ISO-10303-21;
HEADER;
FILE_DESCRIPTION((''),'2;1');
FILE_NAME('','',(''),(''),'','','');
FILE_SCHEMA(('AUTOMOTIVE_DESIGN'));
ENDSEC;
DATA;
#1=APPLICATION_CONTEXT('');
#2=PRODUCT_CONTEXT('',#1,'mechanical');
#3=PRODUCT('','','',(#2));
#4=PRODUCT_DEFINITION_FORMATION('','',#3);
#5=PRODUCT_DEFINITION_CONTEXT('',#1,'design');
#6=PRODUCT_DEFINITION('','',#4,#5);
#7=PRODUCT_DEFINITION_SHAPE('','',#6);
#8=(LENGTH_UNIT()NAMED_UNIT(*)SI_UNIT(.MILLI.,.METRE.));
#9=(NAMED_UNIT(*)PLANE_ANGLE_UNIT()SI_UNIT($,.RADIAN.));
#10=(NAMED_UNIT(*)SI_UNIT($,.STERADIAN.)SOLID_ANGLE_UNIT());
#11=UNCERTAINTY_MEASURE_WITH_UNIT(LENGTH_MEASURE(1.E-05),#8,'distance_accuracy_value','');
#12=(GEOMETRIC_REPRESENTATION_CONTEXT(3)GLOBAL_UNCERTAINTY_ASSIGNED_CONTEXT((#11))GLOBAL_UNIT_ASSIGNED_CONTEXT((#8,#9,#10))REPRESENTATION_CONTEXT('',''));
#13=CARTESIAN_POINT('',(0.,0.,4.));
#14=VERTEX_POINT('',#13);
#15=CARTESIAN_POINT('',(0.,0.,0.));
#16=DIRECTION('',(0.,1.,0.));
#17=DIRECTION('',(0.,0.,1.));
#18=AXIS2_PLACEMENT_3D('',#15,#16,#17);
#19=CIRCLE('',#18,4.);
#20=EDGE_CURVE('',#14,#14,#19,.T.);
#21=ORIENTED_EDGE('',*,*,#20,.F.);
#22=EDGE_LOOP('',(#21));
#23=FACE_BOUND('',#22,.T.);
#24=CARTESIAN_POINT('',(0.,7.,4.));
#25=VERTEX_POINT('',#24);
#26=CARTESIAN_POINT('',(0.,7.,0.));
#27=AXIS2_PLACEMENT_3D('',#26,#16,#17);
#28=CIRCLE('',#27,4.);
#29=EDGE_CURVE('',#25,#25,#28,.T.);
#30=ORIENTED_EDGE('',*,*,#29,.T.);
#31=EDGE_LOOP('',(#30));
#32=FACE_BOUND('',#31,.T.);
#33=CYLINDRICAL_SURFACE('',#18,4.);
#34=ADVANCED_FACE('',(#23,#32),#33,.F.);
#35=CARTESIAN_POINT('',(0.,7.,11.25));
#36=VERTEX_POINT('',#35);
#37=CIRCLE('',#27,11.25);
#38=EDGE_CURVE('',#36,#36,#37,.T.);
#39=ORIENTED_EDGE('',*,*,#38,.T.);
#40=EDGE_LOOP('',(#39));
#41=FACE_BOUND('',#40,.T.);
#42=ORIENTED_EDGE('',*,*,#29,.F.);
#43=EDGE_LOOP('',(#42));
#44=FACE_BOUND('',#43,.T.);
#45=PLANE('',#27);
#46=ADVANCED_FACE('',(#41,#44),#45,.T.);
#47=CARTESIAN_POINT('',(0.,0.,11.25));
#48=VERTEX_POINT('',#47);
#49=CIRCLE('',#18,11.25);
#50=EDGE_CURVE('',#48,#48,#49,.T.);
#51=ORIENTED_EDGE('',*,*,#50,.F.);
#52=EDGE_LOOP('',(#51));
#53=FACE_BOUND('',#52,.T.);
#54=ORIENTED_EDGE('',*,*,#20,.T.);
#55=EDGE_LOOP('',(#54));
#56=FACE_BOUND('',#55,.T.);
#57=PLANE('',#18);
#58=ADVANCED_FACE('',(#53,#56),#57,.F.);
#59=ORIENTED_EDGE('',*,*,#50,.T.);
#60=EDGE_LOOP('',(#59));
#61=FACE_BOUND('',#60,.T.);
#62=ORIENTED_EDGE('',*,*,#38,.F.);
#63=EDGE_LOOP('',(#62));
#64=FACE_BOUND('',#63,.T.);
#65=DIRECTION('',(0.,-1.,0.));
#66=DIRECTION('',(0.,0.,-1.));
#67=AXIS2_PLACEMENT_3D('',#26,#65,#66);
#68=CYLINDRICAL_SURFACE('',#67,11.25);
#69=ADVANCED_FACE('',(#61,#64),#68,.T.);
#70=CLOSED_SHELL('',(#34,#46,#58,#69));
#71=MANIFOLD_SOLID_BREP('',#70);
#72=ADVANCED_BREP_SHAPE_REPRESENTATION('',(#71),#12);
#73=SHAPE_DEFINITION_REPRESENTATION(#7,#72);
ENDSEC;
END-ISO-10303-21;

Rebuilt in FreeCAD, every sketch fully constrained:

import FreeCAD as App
import Part
import Sketcher

doc = App.newDocument("Part")
body = doc.addObject("PartDesign::Body", "Body")

sketch1 = body.newObject("Sketcher::SketchObject", "Sketch")
sketch1.AttachmentSupport = (doc.getObject("XZ_Plane"), [""])
sketch1.MapMode = "FlatFace"
sketch1.addGeometry(Part.Circle(App.Vector(0, 0, 0), App.Vector(0, 0, 1), 11.25), False)
sketch1.addConstraint([
    Sketcher.Constraint("Coincident", 0, 3, -1, 1),
    Sketcher.Constraint("Diameter", 0, 22.5),
])
pad1 = body.newObject("PartDesign::Pad", "Pad")
pad1.Profile = sketch1
pad1.Length = 7
pad1.Reversed = True

sketch2 = body.newObject("Sketcher::SketchObject", "Sketch001")
sketch2.AttachmentSupport = (doc.getObject("XZ_Plane"), [""])
sketch2.MapMode = "FlatFace"
sketch2.AttachmentOffset = App.Placement(App.Vector(0, 0, -7), App.Rotation())
sketch2.addGeometry(Part.Circle(App.Vector(0, 0, 0), App.Vector(0, 0, 1), 4), False)
sketch2.addConstraint([
    Sketcher.Constraint("Coincident", 0, 3, -1, 1),
    Sketcher.Constraint("Diameter", 0, 8.0),
])
pocket1 = body.newObject("PartDesign::Pocket", "Pocket")
pocket1.Profile = sketch2
pocket1.Length = 7
pocket1.Reversed = True

doc.recompute()
